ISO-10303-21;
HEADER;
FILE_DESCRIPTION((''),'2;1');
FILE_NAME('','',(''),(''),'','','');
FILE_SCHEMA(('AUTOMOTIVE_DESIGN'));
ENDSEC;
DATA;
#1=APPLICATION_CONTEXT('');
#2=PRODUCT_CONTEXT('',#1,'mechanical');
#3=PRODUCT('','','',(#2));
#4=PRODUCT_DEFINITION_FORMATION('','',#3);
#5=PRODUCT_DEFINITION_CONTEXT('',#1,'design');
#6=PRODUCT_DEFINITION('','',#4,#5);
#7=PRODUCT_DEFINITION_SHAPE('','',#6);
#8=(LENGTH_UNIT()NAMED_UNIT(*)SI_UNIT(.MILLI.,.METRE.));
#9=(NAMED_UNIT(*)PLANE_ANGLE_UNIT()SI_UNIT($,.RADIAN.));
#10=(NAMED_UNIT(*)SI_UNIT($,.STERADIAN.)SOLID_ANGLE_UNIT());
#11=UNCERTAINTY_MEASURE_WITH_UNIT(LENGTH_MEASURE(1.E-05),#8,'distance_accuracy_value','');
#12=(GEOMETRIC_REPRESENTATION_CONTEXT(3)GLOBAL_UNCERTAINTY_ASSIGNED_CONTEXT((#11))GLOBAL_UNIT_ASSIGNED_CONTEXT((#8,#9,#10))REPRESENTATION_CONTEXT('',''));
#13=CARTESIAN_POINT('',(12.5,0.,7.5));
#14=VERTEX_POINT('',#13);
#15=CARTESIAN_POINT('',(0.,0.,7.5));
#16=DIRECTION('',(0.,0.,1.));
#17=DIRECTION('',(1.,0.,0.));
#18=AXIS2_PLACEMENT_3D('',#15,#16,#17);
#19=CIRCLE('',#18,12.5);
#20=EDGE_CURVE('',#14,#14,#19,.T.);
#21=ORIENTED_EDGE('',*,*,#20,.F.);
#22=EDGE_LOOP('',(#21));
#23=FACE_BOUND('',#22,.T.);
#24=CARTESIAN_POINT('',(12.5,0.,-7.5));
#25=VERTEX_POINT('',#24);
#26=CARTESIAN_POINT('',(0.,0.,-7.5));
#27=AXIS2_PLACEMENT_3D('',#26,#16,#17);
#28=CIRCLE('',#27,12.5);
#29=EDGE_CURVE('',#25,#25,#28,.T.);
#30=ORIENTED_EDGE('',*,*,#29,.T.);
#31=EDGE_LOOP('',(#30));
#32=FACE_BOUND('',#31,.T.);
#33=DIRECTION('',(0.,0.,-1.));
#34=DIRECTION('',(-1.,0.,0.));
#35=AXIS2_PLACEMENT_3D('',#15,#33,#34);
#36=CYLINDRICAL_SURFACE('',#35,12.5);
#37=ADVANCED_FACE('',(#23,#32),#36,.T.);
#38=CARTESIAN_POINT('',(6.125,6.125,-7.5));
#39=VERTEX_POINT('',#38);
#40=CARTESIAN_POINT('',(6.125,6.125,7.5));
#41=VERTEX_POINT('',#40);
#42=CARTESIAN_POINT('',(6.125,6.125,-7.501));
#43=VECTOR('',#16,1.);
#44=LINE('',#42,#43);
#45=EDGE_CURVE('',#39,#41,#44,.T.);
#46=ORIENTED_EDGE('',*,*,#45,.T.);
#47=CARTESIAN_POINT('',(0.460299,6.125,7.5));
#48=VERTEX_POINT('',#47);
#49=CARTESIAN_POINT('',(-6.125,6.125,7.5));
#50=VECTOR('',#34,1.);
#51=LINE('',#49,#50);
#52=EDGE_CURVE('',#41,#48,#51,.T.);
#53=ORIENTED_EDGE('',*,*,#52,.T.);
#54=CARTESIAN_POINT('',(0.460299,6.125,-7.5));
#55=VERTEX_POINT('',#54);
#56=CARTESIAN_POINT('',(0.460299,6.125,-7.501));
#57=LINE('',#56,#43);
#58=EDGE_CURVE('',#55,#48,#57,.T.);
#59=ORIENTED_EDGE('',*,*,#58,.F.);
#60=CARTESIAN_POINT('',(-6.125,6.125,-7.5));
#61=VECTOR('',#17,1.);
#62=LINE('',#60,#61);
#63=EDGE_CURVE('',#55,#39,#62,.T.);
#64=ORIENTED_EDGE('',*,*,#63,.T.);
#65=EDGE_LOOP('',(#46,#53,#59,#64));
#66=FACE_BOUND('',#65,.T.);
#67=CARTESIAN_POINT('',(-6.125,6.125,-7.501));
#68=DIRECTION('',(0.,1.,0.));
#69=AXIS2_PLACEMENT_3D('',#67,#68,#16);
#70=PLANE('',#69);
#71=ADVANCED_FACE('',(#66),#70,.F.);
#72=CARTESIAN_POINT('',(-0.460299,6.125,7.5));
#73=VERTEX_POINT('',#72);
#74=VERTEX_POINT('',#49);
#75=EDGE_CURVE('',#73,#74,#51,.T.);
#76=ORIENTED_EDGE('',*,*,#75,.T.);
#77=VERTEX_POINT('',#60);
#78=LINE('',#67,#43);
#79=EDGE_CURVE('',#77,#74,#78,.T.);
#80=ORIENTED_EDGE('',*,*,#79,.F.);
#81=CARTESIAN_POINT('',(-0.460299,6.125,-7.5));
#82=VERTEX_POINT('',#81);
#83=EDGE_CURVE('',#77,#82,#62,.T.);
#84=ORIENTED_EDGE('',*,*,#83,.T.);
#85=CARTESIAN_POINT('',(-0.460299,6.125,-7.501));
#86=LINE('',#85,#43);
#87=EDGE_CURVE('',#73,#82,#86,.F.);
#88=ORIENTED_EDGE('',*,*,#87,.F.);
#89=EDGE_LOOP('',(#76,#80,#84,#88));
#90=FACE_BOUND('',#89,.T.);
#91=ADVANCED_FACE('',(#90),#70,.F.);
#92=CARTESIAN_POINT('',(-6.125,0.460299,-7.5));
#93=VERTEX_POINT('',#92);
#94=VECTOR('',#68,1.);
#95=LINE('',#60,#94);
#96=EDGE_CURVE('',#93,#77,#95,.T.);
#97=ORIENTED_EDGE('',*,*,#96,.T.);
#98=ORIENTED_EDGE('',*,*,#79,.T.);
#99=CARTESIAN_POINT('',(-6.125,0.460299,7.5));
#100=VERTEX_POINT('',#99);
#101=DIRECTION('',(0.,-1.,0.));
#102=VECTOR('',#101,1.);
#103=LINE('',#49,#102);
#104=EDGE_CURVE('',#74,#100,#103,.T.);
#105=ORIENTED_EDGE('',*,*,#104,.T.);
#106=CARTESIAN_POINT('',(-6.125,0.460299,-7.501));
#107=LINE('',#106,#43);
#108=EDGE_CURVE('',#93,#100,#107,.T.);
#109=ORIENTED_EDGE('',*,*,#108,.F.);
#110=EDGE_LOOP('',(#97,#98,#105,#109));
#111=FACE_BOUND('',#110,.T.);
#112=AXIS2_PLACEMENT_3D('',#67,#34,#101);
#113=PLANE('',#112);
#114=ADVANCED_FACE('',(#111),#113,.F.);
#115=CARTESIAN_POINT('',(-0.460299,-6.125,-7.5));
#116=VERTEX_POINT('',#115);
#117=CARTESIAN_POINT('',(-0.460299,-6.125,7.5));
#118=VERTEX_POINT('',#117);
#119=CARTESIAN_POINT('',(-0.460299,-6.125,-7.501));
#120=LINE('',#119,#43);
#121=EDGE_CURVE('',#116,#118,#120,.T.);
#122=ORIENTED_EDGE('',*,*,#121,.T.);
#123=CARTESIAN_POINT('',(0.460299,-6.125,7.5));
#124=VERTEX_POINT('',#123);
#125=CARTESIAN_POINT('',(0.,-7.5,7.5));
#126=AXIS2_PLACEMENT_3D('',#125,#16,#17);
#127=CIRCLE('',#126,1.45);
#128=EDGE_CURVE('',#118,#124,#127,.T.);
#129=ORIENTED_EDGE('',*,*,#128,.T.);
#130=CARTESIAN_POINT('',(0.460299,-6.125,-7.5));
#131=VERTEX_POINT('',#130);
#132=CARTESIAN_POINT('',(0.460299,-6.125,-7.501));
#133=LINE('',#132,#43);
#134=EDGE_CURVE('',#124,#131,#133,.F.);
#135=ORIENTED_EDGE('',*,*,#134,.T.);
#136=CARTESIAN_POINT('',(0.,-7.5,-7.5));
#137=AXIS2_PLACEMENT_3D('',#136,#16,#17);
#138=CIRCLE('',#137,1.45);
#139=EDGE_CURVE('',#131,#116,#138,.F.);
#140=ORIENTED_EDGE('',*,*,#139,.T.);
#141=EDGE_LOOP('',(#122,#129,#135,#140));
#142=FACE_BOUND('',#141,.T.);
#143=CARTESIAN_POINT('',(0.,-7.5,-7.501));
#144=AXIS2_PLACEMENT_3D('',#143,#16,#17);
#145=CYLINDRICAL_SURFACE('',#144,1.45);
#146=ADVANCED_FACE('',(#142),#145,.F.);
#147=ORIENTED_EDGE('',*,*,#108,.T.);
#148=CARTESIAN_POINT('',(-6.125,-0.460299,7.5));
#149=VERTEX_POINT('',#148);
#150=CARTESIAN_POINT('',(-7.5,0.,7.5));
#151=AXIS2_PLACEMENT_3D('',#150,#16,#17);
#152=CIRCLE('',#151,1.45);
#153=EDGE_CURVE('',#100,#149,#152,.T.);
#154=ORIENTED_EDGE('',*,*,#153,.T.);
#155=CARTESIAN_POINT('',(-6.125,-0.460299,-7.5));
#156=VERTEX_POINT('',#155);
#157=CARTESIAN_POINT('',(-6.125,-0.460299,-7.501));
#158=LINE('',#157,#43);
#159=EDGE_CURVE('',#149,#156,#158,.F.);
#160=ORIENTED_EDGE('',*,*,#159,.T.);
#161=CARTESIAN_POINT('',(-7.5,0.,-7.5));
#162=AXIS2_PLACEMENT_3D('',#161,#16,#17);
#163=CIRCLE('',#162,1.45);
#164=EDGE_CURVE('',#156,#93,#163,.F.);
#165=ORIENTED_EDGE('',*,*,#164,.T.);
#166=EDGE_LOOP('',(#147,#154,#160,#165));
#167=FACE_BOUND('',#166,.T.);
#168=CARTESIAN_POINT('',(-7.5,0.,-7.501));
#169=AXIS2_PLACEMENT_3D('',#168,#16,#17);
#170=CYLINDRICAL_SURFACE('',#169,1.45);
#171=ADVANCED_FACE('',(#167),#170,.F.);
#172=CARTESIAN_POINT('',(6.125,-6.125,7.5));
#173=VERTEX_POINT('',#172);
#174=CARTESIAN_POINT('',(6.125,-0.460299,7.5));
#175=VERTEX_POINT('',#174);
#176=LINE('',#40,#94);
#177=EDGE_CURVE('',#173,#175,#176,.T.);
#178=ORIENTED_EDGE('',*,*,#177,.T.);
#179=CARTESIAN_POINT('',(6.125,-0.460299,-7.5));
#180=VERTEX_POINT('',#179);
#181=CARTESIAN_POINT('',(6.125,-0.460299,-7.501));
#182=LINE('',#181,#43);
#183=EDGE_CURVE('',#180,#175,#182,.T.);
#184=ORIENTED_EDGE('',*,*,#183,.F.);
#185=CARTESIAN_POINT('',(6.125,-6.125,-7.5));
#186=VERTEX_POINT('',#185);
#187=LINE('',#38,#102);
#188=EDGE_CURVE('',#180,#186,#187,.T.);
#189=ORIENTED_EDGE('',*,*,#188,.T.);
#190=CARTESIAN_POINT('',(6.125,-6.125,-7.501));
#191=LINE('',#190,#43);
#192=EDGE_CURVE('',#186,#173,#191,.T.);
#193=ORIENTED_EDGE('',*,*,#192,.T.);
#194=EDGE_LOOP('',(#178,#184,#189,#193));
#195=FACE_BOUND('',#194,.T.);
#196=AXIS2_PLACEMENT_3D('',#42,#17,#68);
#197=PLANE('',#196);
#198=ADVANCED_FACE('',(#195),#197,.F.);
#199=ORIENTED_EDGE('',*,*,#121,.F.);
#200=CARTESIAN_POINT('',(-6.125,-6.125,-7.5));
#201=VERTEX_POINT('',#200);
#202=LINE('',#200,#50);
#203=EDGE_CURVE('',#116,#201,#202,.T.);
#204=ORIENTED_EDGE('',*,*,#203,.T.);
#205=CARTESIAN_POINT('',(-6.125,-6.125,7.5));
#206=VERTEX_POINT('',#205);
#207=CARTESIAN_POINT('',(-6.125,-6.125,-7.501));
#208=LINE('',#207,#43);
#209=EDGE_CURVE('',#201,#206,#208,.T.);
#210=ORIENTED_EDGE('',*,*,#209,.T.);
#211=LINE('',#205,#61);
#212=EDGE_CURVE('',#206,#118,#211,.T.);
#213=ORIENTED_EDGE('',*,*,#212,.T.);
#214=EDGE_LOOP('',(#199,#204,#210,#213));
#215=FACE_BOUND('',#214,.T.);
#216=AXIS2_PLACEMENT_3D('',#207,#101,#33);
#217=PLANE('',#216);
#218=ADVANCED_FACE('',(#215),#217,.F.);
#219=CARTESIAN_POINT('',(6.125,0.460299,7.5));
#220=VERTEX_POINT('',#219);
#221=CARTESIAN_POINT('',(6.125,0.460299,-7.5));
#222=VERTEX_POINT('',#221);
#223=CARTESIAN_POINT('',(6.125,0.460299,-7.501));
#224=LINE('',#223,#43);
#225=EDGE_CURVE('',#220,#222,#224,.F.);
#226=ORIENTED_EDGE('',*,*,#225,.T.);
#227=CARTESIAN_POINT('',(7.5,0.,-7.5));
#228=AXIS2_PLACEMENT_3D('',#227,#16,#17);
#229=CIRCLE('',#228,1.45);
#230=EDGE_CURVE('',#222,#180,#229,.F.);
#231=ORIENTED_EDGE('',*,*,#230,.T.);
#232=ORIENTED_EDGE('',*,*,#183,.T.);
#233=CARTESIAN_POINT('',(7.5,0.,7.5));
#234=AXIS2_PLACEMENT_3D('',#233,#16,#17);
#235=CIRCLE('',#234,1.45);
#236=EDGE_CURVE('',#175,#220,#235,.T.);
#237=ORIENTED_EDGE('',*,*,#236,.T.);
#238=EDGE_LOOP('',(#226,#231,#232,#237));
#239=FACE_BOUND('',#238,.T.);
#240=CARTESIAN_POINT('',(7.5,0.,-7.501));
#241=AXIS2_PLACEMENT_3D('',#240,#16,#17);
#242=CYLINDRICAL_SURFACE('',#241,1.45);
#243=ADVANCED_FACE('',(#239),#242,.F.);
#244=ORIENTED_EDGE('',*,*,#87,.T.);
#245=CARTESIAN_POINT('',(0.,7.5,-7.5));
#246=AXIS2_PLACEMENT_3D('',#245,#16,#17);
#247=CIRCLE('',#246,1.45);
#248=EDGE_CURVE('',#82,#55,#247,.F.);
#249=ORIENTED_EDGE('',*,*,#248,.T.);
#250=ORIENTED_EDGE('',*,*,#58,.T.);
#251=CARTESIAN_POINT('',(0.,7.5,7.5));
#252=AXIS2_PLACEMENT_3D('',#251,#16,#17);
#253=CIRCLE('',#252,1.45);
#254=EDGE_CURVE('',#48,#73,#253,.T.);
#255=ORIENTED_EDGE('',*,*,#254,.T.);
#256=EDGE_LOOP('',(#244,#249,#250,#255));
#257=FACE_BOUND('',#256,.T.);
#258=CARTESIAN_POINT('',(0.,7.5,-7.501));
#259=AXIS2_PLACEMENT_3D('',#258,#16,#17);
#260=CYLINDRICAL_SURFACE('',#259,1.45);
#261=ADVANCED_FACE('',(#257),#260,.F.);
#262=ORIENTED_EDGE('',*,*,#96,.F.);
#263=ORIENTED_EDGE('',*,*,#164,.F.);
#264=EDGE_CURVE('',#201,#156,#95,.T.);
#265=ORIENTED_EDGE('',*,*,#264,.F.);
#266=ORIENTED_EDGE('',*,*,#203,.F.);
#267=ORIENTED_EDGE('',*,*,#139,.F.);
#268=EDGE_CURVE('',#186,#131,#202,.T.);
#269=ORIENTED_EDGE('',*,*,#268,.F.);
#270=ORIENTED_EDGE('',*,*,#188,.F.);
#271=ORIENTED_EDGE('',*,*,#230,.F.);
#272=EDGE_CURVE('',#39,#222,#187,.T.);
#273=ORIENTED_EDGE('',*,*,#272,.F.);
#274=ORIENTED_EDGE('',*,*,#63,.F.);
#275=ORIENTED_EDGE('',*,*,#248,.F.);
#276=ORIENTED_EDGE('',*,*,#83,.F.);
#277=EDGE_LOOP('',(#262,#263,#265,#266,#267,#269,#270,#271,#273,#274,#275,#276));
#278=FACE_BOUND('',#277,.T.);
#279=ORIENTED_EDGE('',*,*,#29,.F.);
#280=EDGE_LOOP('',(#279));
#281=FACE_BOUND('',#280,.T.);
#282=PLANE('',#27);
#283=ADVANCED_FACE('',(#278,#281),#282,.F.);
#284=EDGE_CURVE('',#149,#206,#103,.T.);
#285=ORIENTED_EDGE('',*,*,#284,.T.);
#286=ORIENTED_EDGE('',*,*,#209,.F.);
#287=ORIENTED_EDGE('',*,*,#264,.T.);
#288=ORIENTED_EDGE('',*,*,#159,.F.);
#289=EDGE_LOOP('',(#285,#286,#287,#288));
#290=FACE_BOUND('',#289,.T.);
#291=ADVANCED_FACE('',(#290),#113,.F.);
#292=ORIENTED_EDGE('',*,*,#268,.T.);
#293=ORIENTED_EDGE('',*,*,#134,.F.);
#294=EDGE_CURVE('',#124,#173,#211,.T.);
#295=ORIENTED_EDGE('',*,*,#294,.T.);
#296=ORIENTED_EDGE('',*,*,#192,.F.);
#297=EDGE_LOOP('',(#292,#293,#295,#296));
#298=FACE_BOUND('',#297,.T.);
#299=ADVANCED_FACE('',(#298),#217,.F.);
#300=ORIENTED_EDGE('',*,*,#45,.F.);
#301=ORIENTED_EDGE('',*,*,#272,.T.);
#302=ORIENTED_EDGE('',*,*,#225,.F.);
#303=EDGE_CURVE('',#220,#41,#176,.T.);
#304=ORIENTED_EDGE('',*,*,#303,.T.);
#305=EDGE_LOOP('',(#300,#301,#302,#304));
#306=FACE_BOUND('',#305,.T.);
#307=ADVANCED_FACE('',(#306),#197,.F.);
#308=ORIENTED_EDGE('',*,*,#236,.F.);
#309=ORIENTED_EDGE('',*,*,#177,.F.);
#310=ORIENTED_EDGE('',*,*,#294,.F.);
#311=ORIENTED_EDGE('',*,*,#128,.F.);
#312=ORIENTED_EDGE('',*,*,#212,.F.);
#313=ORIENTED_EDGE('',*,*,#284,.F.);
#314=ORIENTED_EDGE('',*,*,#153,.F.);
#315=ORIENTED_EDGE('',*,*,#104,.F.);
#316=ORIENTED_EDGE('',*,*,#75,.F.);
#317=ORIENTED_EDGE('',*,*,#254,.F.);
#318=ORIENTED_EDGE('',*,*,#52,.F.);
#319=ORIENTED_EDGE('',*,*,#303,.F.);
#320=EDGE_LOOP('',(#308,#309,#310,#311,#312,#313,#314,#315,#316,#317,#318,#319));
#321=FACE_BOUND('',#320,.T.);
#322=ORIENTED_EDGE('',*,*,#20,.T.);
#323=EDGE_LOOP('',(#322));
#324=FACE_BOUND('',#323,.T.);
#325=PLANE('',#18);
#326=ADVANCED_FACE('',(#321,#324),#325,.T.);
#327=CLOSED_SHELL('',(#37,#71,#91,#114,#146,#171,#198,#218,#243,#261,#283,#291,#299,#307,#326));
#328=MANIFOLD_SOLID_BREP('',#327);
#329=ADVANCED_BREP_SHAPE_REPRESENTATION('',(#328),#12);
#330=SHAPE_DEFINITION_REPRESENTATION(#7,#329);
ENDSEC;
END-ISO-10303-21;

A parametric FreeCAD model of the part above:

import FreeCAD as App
import Part
import Sketcher
from FreeCAD import Vector

doc = App.newDocument("Part")
body = doc.addObject("PartDesign::Body", "Body")

# Sketch on XY plane
sketch1 = body.newObject("Sketcher::SketchObject", "Sketch")
sketch1.AttachmentSupport = (doc.getObject("XY_Plane"), [""])
sketch1.MapMode = "FlatFace"
sketch1.addGeometry(Part.Circle(Vector(0, 0, 0), Vector(0, 0, 1), 12), False)
sketch1.addConstraint([
    Sketcher.Constraint("Coincident", 0, 3, -1, 1),
    Sketcher.Constraint("Diameter", 0, 25.0),
])
pad1 = body.newObject("PartDesign::Pad", "Pad")
pad1.Profile = sketch1
pad1.Length = 15
pad1.Midplane = True

# Sketch on XY plane
sketch2 = body.newObject("Sketcher::SketchObject", "Sketch001")
sketch2.AttachmentSupport = (doc.getObject("XY_Plane"), [""])
sketch2.MapMode = "FlatFace"
sketch2.AttachmentOffset = App.Placement(Vector(0, 0, 7.5), App.Rotation())
sketch2.addGeometry([
    Part.LineSegment(Vector(-6, 6, 0), Vector(-6, -6, 0)),
    Part.LineSegment(Vector(-6, -6, 0), Vector(6, -6, 0)),
    Part.LineSegment(Vector(6, -6, 0), Vector(6, 6, 0)),
    Part.LineSegment(Vector(6, 6, 0), Vector(-6, 6, 0)),
], False)
sketch2.addConstraint([
    Sketcher.Constraint("Coincident", 0, 2, 1, 1),
    Sketcher.Constraint("Coincident", 1, 2, 2, 1),
    Sketcher.Constraint("Coincident", 2, 2, 3, 1),
    Sketcher.Constraint("Coincident", 3, 2, 0, 1),
    Sketcher.Constraint("Vertical", 0),
    Sketcher.Constraint("Horizontal", 1),
    Sketcher.Constraint("Vertical", 2),
    Sketcher.Constraint("Horizontal", 3),
    Sketcher.Constraint("Symmetric", 0, 2, 2, 2, -1, 1),
    Sketcher.Constraint("Equal", 3, 0),
    Sketcher.Constraint("DistanceX", 1, 1, 1, 2, 12.25),
])
pocket1 = body.newObject("PartDesign::Pocket", "Pocket")
pocket1.Profile = sketch2
pocket1.Type = "UpToFirst"

# Sketch on XY plane
sketch3 = body.newObject("Sketcher::SketchObject", "Sketch002")
sketch3.AttachmentSupport = (doc.getObject("XY_Plane"), [""])
sketch3.MapMode = "FlatFace"
sketch3.AttachmentOffset = App.Placement(Vector(0, 0, 7.5), App.Rotation())
sketch3.addGeometry(Part.Circle(Vector(7.5, 0, 0), Vector(0, 0, 1), 1.4), False)
sketch3.addConstraint([
    Sketcher.Constraint("PointOnObject", 0, 3, -1),
    Sketcher.Constraint("Diameter", 0, 2.9),
    Sketcher.Constraint("DistanceX", -1, 1, 0, 3, 7.5),
])
pocket2 = body.newObject("PartDesign::Pocket", "Pocket001")
pocket2.Profile = sketch3
pocket2.Type = "UpToFirst"

# Sketch on XY plane
sketch4 = body.newObject("Sketcher::SketchObject", "Sketch003")
sketch4.AttachmentSupport = (doc.getObject("XY_Plane"), [""])
sketch4.MapMode = "FlatFace"
sketch4.AttachmentOffset = App.Placement(Vector(0, 0, 7.5), App.Rotation())
sketch4.addGeometry(Part.Circle(Vector(0, -7.5, 0), Vector(0, 0, 1), 1.4), False)
sketch4.addConstraint([
    Sketcher.Constraint("PointOnObject", 0, 3, -2),
    Sketcher.Constraint("Diameter", 0, 2.9),
    Sketcher.Constraint("DistanceY", 0, 3, -1, 1, 7.5),
])
pocket3 = body.newObject("PartDesign::Pocket", "Pocket002")
pocket3.Profile = sketch4
pocket3.Type = "UpToFirst"

# Sketch on XY plane
sketch5 = body.newObject("Sketcher::SketchObject", "Sketch004")
sketch5.AttachmentSupport = (doc.getObject("XY_Plane"), [""])
sketch5.MapMode = "FlatFace"
sketch5.AttachmentOffset = App.Placement(Vector(0, 0, 7.5), App.Rotation())
sketch5.addGeometry(Part.Circle(Vector(-7.5, 0, 0), Vector(0, 0, 1), 1.4), False)
sketch5.addConstraint([
    Sketcher.Constraint("PointOnObject", 0, 3, -1),
    Sketcher.Constraint("Diameter", 0, 2.9),
    Sketcher.Constraint("DistanceX", 0, 3, -1, 1, 7.5),
])
pocket4 = body.newObject("PartDesign::Pocket", "Pocket003")
pocket4.Profile = sketch5
pocket4.Type = "UpToFirst"

# Sketch on XY plane
sketch6 = body.newObject("Sketcher::SketchObject", "Sketch005")
sketch6.AttachmentSupport = (doc.getObject("XY_Plane"), [""])
sketch6.MapMode = "FlatFace"
sketch6.AttachmentOffset = App.Placement(Vector(0, 0, 7.5), App.Rotation())
sketch6.addGeometry(Part.Circle(Vector(0, 7.5, 0), Vector(0, 0, 1), 1.4), False)
sketch6.addConstraint([
    Sketcher.Constraint("PointOnObject", 0, 3, -2),
    Sketcher.Constraint("Diameter", 0, 2.9),
    Sketcher.Constraint("DistanceY", -1, 1, 0, 3, 7.5),
])
pocket5 = body.newObject("PartDesign::Pocket", "Pocket004")
pocket5.Profile = sketch6
pocket5.Type = "UpToFirst"

doc.recompute()
